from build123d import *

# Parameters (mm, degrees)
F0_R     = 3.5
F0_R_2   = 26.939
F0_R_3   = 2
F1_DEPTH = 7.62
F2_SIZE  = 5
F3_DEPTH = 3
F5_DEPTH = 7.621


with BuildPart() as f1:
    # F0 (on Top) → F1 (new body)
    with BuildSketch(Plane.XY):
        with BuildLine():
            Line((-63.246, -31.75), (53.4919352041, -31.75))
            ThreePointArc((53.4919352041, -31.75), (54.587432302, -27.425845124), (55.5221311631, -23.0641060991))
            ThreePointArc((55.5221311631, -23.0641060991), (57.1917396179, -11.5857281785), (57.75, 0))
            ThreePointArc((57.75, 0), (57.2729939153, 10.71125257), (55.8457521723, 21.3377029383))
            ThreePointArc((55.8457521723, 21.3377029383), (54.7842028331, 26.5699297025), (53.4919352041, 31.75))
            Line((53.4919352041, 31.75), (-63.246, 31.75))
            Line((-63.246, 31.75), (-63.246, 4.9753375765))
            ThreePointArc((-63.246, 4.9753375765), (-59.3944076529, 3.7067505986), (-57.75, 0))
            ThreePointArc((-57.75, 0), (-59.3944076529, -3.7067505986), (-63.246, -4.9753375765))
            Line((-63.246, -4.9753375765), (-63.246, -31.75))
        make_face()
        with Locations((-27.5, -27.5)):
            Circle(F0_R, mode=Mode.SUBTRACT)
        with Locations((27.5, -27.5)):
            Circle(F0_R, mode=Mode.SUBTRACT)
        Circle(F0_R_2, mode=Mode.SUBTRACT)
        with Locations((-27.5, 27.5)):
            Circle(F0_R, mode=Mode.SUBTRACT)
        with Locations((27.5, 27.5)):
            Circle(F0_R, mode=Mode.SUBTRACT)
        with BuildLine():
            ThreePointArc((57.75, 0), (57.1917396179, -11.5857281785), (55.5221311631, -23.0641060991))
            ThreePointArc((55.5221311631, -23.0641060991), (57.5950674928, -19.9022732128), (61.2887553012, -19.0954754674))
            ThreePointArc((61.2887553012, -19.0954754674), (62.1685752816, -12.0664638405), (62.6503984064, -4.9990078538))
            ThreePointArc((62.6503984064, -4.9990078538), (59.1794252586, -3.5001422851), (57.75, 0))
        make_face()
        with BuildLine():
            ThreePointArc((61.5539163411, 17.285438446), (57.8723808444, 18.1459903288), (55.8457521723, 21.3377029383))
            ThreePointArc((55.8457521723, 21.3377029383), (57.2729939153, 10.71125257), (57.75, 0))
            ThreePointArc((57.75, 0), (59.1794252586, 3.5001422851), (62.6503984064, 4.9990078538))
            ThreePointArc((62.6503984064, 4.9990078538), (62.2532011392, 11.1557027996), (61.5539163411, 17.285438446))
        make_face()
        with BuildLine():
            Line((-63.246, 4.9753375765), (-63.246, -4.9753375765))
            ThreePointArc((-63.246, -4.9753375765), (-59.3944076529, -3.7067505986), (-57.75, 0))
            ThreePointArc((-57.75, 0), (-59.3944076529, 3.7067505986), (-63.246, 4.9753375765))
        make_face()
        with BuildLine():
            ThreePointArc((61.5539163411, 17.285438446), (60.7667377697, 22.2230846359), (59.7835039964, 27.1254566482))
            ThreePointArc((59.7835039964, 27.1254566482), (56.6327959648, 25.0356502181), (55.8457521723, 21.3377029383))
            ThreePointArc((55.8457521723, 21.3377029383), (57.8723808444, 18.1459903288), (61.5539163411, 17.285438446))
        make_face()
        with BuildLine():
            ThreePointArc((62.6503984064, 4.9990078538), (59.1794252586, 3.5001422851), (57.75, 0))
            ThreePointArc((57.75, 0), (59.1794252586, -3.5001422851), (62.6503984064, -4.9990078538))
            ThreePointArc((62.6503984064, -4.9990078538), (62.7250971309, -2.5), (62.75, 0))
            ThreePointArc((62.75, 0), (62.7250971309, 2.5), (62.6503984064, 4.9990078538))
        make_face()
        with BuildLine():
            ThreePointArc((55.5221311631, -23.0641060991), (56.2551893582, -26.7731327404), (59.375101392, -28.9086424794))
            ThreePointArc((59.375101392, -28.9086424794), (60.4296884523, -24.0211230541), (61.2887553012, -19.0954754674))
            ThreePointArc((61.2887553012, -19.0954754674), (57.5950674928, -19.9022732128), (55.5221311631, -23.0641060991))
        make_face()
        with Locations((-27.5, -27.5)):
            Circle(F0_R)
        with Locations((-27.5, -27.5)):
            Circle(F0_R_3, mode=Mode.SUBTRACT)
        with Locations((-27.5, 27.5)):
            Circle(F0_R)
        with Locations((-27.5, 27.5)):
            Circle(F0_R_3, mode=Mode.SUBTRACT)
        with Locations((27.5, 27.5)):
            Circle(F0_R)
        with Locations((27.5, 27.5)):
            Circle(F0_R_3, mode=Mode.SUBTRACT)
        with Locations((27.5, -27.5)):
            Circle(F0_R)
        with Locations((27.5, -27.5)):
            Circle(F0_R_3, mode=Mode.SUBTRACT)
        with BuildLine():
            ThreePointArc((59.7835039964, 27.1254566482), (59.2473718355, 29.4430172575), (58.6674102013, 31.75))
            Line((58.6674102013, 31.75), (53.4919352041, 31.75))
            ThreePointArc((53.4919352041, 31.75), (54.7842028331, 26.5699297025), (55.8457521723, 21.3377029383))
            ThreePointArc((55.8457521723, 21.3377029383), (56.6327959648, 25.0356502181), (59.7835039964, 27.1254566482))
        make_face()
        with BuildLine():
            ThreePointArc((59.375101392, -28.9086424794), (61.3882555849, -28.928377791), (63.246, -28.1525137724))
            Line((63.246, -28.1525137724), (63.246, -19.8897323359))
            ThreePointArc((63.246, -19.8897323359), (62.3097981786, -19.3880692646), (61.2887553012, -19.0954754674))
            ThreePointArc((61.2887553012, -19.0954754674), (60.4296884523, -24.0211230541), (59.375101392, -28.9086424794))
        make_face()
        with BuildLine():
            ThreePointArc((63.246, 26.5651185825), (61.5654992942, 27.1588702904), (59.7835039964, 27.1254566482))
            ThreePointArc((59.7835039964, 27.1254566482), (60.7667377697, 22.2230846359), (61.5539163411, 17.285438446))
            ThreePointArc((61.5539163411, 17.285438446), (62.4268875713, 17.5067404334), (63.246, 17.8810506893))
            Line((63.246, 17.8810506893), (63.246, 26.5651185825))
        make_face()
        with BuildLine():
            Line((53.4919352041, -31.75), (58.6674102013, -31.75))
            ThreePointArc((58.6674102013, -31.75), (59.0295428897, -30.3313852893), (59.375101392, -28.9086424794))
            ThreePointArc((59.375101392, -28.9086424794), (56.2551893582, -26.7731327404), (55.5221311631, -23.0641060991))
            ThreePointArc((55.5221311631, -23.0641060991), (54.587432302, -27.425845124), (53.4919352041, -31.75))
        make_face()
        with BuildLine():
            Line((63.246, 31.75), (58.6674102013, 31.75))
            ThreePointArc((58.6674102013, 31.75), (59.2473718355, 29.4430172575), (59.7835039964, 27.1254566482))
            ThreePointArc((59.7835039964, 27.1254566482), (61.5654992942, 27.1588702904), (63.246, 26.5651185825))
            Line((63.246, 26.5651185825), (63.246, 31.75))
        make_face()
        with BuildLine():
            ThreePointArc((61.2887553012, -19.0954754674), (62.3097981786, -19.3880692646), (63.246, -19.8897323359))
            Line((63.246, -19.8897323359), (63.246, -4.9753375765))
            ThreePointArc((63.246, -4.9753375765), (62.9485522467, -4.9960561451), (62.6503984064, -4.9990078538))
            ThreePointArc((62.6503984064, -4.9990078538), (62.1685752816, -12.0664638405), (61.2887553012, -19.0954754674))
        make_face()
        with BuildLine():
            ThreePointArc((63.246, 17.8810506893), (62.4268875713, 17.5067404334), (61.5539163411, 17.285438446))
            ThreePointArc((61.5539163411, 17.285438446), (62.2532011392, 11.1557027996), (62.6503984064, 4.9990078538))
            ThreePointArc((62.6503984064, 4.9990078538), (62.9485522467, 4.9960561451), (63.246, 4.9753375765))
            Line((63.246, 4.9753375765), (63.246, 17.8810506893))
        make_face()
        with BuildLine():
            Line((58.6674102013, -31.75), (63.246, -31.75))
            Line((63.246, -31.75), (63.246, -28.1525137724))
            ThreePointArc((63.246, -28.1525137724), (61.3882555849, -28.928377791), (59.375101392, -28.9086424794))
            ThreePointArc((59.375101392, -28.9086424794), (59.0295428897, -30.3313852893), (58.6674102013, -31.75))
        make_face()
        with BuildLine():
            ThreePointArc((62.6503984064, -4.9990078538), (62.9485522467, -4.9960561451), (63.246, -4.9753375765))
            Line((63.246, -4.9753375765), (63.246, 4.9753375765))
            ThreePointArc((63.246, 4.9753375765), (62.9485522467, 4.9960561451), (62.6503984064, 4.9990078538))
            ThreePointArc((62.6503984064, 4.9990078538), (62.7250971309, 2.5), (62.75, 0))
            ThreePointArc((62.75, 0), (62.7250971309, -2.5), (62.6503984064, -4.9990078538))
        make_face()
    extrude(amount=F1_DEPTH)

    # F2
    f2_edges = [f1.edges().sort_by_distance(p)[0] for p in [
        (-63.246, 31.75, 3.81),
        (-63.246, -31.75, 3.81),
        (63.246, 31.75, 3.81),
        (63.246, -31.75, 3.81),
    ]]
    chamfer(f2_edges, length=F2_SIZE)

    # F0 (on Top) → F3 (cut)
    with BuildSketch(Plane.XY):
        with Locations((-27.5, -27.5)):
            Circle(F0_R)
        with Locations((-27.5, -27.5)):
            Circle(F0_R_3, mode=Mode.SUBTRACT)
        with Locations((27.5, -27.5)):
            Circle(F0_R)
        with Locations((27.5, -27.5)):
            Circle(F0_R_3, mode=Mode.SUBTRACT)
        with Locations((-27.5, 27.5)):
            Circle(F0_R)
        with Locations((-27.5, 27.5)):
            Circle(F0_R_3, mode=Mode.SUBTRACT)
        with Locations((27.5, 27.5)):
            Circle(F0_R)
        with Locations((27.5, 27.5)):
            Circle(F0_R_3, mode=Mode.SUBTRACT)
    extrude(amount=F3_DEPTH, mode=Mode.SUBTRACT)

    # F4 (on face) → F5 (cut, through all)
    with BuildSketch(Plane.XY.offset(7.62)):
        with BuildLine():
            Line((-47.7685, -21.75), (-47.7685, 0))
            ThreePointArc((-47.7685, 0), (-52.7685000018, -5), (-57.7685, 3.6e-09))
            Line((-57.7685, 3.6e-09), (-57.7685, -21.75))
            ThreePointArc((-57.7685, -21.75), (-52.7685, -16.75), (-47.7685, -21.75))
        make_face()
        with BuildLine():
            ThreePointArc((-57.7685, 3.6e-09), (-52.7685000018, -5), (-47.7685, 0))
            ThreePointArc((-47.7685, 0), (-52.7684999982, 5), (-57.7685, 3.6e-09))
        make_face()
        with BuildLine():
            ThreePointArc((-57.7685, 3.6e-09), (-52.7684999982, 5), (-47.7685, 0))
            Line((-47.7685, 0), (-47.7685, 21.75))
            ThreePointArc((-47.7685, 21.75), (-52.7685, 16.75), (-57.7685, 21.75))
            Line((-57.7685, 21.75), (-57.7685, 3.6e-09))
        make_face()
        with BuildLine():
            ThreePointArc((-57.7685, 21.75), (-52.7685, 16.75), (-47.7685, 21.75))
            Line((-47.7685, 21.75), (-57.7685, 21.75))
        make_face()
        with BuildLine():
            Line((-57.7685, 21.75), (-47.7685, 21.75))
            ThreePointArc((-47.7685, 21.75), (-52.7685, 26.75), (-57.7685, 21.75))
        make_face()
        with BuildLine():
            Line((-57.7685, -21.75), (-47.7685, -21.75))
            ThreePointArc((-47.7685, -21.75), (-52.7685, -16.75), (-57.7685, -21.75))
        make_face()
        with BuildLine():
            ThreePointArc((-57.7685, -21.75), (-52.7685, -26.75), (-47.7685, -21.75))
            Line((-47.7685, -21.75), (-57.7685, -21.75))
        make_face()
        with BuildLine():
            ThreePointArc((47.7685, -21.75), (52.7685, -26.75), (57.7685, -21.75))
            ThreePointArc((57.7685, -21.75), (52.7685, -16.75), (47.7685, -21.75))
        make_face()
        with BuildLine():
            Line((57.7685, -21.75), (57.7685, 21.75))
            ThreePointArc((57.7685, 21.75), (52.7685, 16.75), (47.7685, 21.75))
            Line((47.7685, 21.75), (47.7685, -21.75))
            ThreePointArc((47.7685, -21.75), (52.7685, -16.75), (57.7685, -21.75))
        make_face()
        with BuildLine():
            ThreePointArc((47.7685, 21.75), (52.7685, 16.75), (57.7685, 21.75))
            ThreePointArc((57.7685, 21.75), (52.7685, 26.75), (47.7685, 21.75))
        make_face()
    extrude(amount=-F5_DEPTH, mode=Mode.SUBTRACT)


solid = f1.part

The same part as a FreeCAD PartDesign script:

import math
import FreeCAD as App
import Part
import Sketcher

V = App.Vector
Q = App.Units.Quantity


def edges_at(feature, points):
    """Names of the edges that pass closest to the given points."""
    edges = feature.Shape.Edges
    near = lambda p: min(range(len(edges)), key=lambda i: edges[i].distToShape(Part.Vertex(*p))[0])
    return sorted({f"Edge{near(p) + 1}" for p in points})


def add_polygon(sketch, points):
    """Adds a closed chain of lines whose ends are joined by coincident constraints."""
    first, n = sketch.GeometryCount, len(points)
    for a, b in zip(points, points[1:] + points[:1]):
        sketch.addGeometry(Part.LineSegment(App.Vector(*a, 0), App.Vector(*b, 0)), False)
    for i in range(n):
        sketch.addConstraint(Sketcher.Constraint("Coincident", first + i, 2, first + (i + 1) % n, 1))

doc = App.newDocument("Part")
body = doc.addObject("PartDesign::Body", "Body")

# Sketch on XY plane
sketch1 = doc.addObject("Sketcher::SketchObject", "Sketch")
body.addObject(sketch1)
sketch1.AttachmentSupport = (doc.XY_Plane, [""])
sketch1.MapMode = "FlatFace"
add_polygon(sketch1, [(63.2, 31.8), (-63.2, 31.8), (-63.2, -31.8), (63.2, -31.8)])  # lines 0-3
sketch1.addGeometry(Part.Circle(V(-27.5, -27.5, 0), V(0, 0, 1), 2), False)  # 4
sketch1.addGeometry(Part.Circle(V(27.5, -27.5, 0), V(0, 0, 1), 2), False)  # 5
sketch1.addGeometry(Part.Circle(V(-27.5, 27.5, 0), V(0, 0, 1), 2), False)  # 6
sketch1.addGeometry(Part.Circle(V(0, 0, 0), V(0, 0, 1), 26.9), False)  # 7
sketch1.addGeometry(Part.Circle(V(27.5, 27.5, 0), V(0, 0, 1), 2), False)  # 8
sketch1.addConstraint([
    Sketcher.Constraint("Horizontal", 0),
    Sketcher.Constraint("Vertical", 1),
    Sketcher.Constraint("Horizontal", 2),
    Sketcher.Constraint("Vertical", 3),
    Sketcher.Constraint("Coincident", 7, 3, -1, 1),
    Sketcher.Constraint("Equal", 4, 5),
    Sketcher.Constraint("Equal", 5, 6),
    Sketcher.Constraint("Equal", 6, 8),
    Sketcher.Constraint("Symmetric", 5, 3, 6, 3, -1, 1),
    Sketcher.Constraint("Symmetric", 4, 3, 8, 3, -1, 1),
    Sketcher.Constraint("Symmetric", 0, 2, 2, 2, -1, 1),
    Sketcher.Constraint("Symmetric", 4, 3, 5, 3, -2),
    Sketcher.Constraint("Diameter", 4, Q("4 mm")),
    Sketcher.Constraint("Diameter", 7, Q("53.878 mm")),
    Sketcher.Constraint("DistanceY", 1, 2, 1, 1, Q("63.5 mm")),
    Sketcher.Constraint("DistanceX", 4, 3, 5, 3, Q("55 mm")),
    Sketcher.Constraint("DistanceY", 4, 3, 6, 3, Q("55 mm")),
    Sketcher.Constraint("DistanceX", 0, 2, 0, 1, Q("126.492 mm")),
])
pad1 = doc.addObject("PartDesign::Pad", "Pad")
body.addObject(pad1)
pad1.Profile = sketch1
pad1.Length = 7.62
doc.recompute()

chamfer = doc.addObject("PartDesign::Chamfer", "Chamfer")
body.addObject(chamfer)
chamfer.Base = (pad1, edges_at(pad1, [
    (-63.246, 31.75, 3.81),
    (-63.246, -31.75, 3.81),
    (63.246, 31.75, 3.81),
    (63.246, -31.75, 3.81),
]))
chamfer.Size = 5

# Sketch on XY plane
sketch2 = doc.addObject("Sketcher::SketchObject", "Sketch001")
body.addObject(sketch2)
sketch2.AttachmentSupport = (doc.XY_Plane, [""])
sketch2.MapMode = "FlatFace"
sketch2.addGeometry([
    Part.Circle(V(-27.5, -27.5, 0), V(0, 0, 1), 3.5),  # 0
    Part.Circle(V(-27.5, -27.5, 0), V(0, 0, 1), 2),  # 1
    Part.Circle(V(27.5, -27.5, 0), V(0, 0, 1), 3.5),  # 2
    Part.Circle(V(27.5, -27.5, 0), V(0, 0, 1), 2),  # 3
    Part.Circle(V(-27.5, 27.5, 0), V(0, 0, 1), 3.5),  # 4
    Part.Circle(V(-27.5, 27.5, 0), V(0, 0, 1), 2),  # 5
    Part.Circle(V(27.5, 27.5, 0), V(0, 0, 1), 3.5),  # 6
    Part.Circle(V(27.5, 27.5, 0), V(0, 0, 1), 2),  # 7
], False)
sketch2.addConstraint([
    Sketcher.Constraint("Coincident", 1, 3, 0, 3),
    Sketcher.Constraint("Coincident", 3, 3, 2, 3),
    Sketcher.Constraint("Coincident", 5, 3, 4, 3),
    Sketcher.Constraint("Coincident", 7, 3, 6, 3),
    Sketcher.Constraint("Equal", 0, 2),
    Sketcher.Constraint("Equal", 1, 3),
    Sketcher.Constraint("Equal", 2, 4),
    Sketcher.Constraint("Equal", 3, 5),
    Sketcher.Constraint("Equal", 4, 6),
    Sketcher.Constraint("Equal", 5, 7),
    Sketcher.Constraint("Symmetric", 2, 3, 4, 3, -1, 1),
    Sketcher.Constraint("Symmetric", 0, 3, 6, 3, -1, 1),
    Sketcher.Constraint("Symmetric", 0, 3, 2, 3, -2),
    Sketcher.Constraint("Diameter", 0, Q("7 mm")),
    Sketcher.Constraint("Diameter", 1, Q("4 mm")),
    Sketcher.Constraint("DistanceX", 0, 3, 2, 3, Q("55 mm")),
    Sketcher.Constraint("DistanceY", 0, 3, 4, 3, Q("55 mm")),
])
pocket1 = doc.addObject("PartDesign::Pocket", "Pocket")
body.addObject(pocket1)
pocket1.Profile = sketch2
pocket1.Length = 3
pocket1.Reversed = True

# Sketch on XY plane
sketch3 = doc.addObject("Sketcher::SketchObject", "Sketch002")
body.addObject(sketch3)
sketch3.AttachmentSupport = (doc.XY_Plane, [""])
sketch3.MapMode = "FlatFace"
sketch3.AttachmentOffset = App.Placement(V(0, 0, 7.62), App.Rotation())
sketch3.addGeometry([
    Part.LineSegment(V(-48, -22, 0), V(-48, 22, 0)),  # 0
    Part.ArcOfCircle(Part.Circle(V(-53, 22, 0), V(0, 0, 1), 5), math.radians(0), math.radians(180)),  # 1
    Part.LineSegment(V(-58, 22, 0), V(-58, -22, 0)),  # 2
    Part.ArcOfCircle(Part.Circle(V(-53, -22, 0), V(0, 0, 1), 5), math.radians(180), math.radians(360)),  # 3
    Part.ArcOfCircle(Part.Circle(V(53, -22, 0), V(0, 0, 1), 5), math.radians(180), math.radians(360)),  # 4
    Part.LineSegment(V(58, -22, 0), V(58, 22, 0)),  # 5
    Part.ArcOfCircle(Part.Circle(V(53, 22, 0), V(0, 0, 1), 5), math.radians(0), math.radians(180)),  # 6
    Part.LineSegment(V(48, 22, 0), V(48, -22, 0)),  # 7
], False)
sketch3.addConstraint([
    Sketcher.Constraint("Tangent", 0, 2, 1, 1),
    Sketcher.Constraint("Tangent", 1, 2, 2, 1),
    Sketcher.Constraint("Tangent", 2, 2, 3, 1),
    Sketcher.Constraint("Tangent", 3, 2, 0, 1),
    Sketcher.Constraint("Tangent", 4, 2, 5, 1),
    Sketcher.Constraint("Tangent", 5, 2, 6, 1),
    Sketcher.Constraint("Tangent", 6, 2, 7, 1),
    Sketcher.Constraint("Tangent", 7, 2, 4, 1),
    Sketcher.Constraint("Vertical", 0),
    Sketcher.Constraint("Vertical", 2),
    Sketcher.Constraint("Vertical", 5),
    Sketcher.Constraint("Vertical", 7),
    Sketcher.Constraint("Equal", 3, 4),
    Sketcher.Constraint("Symmetric", 1, 3, 4, 3, -1, 1),
    Sketcher.Constraint("Horizontal", 3, 3, 4, 3),
    Sketcher.Constraint("Horizontal", 1, 3, 6, 3),
    Sketcher.Constraint("Radius", 1, Q("5 mm")),
    Sketcher.Constraint("DistanceY", 0, 1, 0, 2, Q("43.5 mm")),
    Sketcher.Constraint("DistanceX", 3, 3, 4, 3, Q("105.537 mm")),
])
pocket2 = doc.addObject("PartDesign::Pocket", "Pocket001")
body.addObject(pocket2)
pocket2.Profile = sketch3
pocket2.Type = "ThroughAll"

doc.recompute()
